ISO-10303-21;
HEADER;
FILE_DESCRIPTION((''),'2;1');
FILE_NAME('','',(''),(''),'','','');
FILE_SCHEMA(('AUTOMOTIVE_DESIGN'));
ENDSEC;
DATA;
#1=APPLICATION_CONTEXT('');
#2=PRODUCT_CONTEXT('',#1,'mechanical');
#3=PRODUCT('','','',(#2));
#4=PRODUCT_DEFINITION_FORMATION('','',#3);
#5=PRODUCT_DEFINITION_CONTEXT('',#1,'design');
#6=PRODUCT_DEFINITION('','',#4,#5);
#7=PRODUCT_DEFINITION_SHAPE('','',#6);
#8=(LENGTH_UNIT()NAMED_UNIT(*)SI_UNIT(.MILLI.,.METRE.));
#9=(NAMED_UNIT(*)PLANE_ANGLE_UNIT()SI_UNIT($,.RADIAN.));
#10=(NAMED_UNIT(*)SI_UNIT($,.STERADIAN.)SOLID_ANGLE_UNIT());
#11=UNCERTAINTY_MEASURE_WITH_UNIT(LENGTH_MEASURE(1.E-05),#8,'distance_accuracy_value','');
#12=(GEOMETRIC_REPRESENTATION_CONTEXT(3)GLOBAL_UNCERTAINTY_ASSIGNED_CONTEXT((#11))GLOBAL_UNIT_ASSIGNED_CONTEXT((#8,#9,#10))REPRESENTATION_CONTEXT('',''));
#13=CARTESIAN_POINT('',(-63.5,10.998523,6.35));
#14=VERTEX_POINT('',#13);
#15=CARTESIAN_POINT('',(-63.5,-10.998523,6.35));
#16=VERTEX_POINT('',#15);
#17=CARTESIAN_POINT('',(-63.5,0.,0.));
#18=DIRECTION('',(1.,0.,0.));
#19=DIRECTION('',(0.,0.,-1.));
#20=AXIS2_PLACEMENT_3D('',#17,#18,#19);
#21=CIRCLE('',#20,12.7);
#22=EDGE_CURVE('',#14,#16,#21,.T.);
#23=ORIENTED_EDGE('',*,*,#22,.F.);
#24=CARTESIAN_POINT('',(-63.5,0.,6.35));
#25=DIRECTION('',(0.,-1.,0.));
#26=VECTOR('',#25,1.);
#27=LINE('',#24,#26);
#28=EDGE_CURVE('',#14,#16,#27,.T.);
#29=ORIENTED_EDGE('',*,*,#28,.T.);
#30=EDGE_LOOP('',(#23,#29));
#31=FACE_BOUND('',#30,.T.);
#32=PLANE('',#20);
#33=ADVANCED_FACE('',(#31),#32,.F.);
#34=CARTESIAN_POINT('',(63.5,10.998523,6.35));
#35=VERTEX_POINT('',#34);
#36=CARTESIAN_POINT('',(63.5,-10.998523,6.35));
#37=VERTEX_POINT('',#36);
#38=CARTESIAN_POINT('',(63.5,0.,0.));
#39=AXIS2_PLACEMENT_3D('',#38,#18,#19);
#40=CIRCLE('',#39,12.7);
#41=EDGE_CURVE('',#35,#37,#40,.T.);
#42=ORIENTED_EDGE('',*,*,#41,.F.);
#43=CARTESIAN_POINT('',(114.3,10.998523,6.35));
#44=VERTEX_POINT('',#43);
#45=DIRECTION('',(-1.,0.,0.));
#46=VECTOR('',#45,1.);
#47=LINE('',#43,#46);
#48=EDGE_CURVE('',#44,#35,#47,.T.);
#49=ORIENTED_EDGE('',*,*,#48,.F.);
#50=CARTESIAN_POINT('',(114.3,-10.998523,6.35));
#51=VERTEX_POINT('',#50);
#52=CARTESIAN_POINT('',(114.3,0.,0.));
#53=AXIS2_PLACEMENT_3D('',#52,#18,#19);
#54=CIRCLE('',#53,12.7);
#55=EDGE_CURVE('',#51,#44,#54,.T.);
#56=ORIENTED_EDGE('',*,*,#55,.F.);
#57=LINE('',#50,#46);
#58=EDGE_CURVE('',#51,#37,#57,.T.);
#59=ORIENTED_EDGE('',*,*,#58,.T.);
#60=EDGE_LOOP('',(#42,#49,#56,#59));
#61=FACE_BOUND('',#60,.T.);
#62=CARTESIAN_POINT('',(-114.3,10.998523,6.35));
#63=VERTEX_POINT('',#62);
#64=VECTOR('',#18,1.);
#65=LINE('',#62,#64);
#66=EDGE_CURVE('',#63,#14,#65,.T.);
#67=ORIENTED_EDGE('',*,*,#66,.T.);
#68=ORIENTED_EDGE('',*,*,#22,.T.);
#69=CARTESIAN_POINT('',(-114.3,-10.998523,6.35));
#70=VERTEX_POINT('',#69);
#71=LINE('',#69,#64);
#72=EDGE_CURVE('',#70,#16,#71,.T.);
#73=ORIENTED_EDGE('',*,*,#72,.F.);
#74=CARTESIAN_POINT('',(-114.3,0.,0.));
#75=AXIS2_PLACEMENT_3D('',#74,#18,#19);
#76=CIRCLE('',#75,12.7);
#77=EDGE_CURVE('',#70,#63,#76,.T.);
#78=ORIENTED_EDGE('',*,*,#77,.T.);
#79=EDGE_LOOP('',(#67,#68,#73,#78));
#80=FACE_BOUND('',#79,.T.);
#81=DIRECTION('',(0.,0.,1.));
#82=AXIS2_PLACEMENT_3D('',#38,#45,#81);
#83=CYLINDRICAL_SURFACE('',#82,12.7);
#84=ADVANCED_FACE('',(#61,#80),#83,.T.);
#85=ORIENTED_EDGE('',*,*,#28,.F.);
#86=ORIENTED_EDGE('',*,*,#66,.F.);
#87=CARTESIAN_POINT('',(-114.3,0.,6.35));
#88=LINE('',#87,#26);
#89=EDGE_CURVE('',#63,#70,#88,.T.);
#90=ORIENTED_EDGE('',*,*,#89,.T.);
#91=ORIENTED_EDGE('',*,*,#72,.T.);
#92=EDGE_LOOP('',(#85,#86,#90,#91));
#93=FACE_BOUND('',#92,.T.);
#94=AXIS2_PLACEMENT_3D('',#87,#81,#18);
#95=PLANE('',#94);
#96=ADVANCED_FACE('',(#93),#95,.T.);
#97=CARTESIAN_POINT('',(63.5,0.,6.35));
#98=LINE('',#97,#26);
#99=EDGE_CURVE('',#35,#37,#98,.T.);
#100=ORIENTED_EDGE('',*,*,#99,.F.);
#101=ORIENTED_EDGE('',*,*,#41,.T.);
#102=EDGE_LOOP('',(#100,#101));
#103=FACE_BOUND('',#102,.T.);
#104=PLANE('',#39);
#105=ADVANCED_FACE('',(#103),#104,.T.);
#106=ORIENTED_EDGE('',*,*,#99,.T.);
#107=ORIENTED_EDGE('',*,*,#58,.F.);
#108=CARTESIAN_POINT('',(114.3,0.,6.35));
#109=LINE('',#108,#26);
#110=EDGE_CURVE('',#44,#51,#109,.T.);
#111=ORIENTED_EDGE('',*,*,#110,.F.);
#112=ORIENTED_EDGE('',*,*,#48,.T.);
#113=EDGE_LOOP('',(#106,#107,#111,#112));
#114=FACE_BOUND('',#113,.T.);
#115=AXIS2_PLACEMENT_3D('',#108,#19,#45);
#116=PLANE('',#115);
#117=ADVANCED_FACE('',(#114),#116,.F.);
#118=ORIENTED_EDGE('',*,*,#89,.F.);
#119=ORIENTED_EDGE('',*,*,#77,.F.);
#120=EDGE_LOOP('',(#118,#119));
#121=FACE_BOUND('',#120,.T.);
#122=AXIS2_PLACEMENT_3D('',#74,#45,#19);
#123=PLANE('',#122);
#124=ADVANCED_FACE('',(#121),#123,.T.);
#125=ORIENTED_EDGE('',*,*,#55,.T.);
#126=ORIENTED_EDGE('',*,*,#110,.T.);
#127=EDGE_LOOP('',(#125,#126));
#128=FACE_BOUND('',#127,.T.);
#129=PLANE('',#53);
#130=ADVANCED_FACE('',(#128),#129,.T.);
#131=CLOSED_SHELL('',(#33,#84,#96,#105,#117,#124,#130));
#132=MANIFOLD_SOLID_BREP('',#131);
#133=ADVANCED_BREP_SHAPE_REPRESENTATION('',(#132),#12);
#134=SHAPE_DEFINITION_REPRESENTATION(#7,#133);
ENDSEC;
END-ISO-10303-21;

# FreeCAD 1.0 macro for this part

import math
import FreeCAD as App
import Part
import Sketcher

V = App.Vector
Q = App.Units.Quantity

doc = App.newDocument("Part")
body = doc.addObject("PartDesign::Body", "Body")

sketch1 = body.newObject("Sketcher::SketchObject", "Sketch")
sketch1.AttachmentSupport = (doc.getObject("YZ_Plane"), [""])
sketch1.MapMode = "FlatFace"
sketch1.addGeometry(Part.Circle(V(0, 0, 0), V(0, 0, 1), 13), False)
sketch1.addConstraint(Sketcher.Constraint("Coincident", 0, 3, -1, 1))
sketch1.addConstraint(Sketcher.Constraint("Diameter", 0, Q("1 in")))
pad1 = body.newObject("PartDesign::Pad", "Pad")
pad1.Profile = sketch1
pad1.Length = Q("5 in")
pad1.Midplane = True

sketch2 = body.newObject("Sketcher::SketchObject", "Sketch001")
sketch2.AttachmentSupport = (doc.getObject("YZ_Plane"), [""])
sketch2.MapMode = "FlatFace"
sketch2.AttachmentOffset = App.Placement(V(0, 0, 2.5 * 25.4), App.Rotation())
sketch2.addGeometry(Part.ArcOfCircle(Part.Circle(V(0, 0, 0), V(0, 0, 1), 13), math.radians(-90), math.radians(30)), False)
sketch2.addGeometry(Part.LineSegment(V(11, 6, 0), V(-11, 6, 0)), False)
sketch2.addGeometry(Part.ArcOfCircle(Part.Circle(V(0, 0, 0), V(0, 0, 1), 13), math.radians(150), math.radians(270)), False)
sketch2.addConstraint(Sketcher.Constraint("Coincident", 0, 2, 1, 1))
sketch2.addConstraint(Sketcher.Constraint("Coincident", 1, 2, 2, 1))
sketch2.addConstraint(Sketcher.Constraint("Tangent", 2, 2, 0, 1))
sketch2.addConstraint(Sketcher.Constraint("Horizontal", 1))
sketch2.addConstraint(Sketcher.Constraint("Coincident", 0, 3, -1, 1))
sketch2.addConstraint(Sketcher.Constraint("Equal", 0, 2))
sketch2.addConstraint(Sketcher.Constraint("PointOnObject", 2, 2, -2))
sketch2.addConstraint(Sketcher.Constraint("Radius", 0, Q("0.5 in")))
sketch2.addConstraint(Sketcher.Constraint("DistanceY", -1, 1, 0, 2, Q("0.25 in")))
pad2 = body.newObject("PartDesign::Pad", "Pad001")
pad2.Profile = sketch2
pad2.Length = Q("2 in")
doc.recompute()

mirrored = body.newObject("PartDesign::Mirrored", "Mirrored")
mirrored.Originals = [pad2]
mirrored.MirrorPlane = (doc.getObject("YZ_Plane"), [""])
body.Tip = mirrored

doc.recompute()
